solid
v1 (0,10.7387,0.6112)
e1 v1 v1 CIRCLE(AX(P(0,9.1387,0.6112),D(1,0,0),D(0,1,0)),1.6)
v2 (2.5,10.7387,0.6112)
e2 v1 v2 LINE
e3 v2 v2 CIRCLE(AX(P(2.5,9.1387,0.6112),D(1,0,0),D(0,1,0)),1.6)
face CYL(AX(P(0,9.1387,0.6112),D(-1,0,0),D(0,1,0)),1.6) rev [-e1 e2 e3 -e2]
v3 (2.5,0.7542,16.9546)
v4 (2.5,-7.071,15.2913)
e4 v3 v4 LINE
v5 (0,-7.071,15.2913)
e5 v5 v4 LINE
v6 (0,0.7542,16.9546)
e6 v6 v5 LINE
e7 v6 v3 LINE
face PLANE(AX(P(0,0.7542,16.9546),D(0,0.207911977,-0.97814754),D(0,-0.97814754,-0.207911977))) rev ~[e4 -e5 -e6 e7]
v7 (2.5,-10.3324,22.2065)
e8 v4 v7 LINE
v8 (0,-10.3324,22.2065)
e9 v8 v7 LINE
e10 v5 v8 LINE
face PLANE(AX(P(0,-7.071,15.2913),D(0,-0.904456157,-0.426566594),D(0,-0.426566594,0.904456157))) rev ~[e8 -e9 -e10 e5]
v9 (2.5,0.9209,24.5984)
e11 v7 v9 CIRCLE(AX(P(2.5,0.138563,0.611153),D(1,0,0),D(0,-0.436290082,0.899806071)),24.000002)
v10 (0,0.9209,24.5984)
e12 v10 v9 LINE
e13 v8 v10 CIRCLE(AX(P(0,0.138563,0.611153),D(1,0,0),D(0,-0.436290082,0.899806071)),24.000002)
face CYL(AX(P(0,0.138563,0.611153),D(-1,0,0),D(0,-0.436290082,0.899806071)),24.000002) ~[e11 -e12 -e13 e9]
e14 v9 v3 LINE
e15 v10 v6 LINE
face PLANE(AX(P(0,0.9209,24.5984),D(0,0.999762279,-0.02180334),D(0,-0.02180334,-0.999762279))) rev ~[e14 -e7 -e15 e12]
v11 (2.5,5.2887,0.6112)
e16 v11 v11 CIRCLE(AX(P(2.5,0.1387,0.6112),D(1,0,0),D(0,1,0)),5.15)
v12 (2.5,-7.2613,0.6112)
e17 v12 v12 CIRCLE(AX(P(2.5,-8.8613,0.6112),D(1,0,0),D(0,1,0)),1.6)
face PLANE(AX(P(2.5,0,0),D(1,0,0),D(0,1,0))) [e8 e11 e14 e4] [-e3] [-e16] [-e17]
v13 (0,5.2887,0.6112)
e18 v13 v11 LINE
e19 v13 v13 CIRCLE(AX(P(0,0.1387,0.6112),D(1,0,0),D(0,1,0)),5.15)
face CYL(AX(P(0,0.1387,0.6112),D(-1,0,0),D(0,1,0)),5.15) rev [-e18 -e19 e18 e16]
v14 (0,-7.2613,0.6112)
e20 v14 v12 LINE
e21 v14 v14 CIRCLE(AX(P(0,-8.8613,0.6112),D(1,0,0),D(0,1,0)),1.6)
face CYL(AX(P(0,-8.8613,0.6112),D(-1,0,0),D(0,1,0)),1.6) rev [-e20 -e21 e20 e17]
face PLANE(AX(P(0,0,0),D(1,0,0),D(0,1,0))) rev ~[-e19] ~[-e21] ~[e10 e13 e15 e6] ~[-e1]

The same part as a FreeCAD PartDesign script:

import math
import FreeCAD as App
import Part
import Sketcher
from FreeCAD import Vector
Q = App.Units.Quantity

doc = App.newDocument("Part")
body = doc.addObject("PartDesign::Body", "Body")

sketch1 = doc.addObject("Sketcher::SketchObject", "Sketch")
body.addObject(sketch1)
sketch1.AttachmentSupport = (doc.YZ_Plane, [""])
sketch1.MapMode = "FlatFace"
sketch1.addGeometry([
    Part.LineSegment(Vector(0.8, 17, 0), Vector(-7.1, 15.3, 0)),
    Part.LineSegment(Vector(-7.1, 15.3, 0), Vector(-10.3, 22.2, 0)),
    Part.ArcOfCircle(Part.Circle(Vector(0.1, 0.6, 0), Vector(0, 0, 1), 24), math.radians(116), math.radians(448)),
    Part.LineSegment(Vector(0.9, 24.6, 0), Vector(0.8, 17, 0)),
    Part.Circle(Vector(-8.9, 0.6, 0), Vector(0, 0, 1), 1.6),
    Part.Circle(Vector(0.1, 0.6, 0), Vector(0, 0, 1), 5.2),
    Part.Circle(Vector(9.1, 0.6, 0), Vector(0, 0, 1), 1.6),
], False)
sketch1.addConstraint([
    Sketcher.Constraint("Coincident", 0, 2, 1, 1),
    Sketcher.Constraint("Coincident", 1, 2, 2, 1),
    Sketcher.Constraint("Coincident", 2, 2, 3, 1),
    Sketcher.Constraint("Coincident", 3, 2, 0, 1),
    Sketcher.Constraint("Coincident", 5, 3, 2, 3),
    Sketcher.Constraint("Equal", 4, 6),
    Sketcher.Constraint("Horizontal", 2, 3, 4, 3),
    Sketcher.Constraint("Horizontal", 5, 3, 6, 3),
    Sketcher.Constraint("Equal", 1, 3),
    Sketcher.Constraint("Radius", 2, Q("24 mm")),
    Sketcher.Constraint("Diameter", 4, Q("3.2 mm")),
    Sketcher.Constraint("Diameter", 5, Q("10.3 mm")),
    Sketcher.Constraint("Angle", 0, Q("-168 deg")),
    Sketcher.Constraint("Distance", 0, Q("8 mm")),
    Sketcher.Constraint("DistanceX", 4, 3, 2, 3, Q("9 mm")),
    Sketcher.Constraint("DistanceX", 2, 3, 6, 3, Q("9 mm")),
    Sketcher.Constraint("Angle", 1, Q("115.2499 deg")),
    Sketcher.Constraint("Angle", 3, Q("-91.2493 deg")),
    Sketcher.Constraint("DistanceY", 4, 3, 0, 2, Q("14.68 mm")),
    Sketcher.Constraint("DistanceX", 0, 2, -1, 1, Q("7.071 mm")),
    Sketcher.Constraint("DistanceY", -1, 1, 2, 3, Q("0.6112 mm")),
])
pad1 = doc.addObject("PartDesign::Pad", "Pad")
body.addObject(pad1)
pad1.Profile = sketch1
pad1.Length = 2.5

doc.recompute()
